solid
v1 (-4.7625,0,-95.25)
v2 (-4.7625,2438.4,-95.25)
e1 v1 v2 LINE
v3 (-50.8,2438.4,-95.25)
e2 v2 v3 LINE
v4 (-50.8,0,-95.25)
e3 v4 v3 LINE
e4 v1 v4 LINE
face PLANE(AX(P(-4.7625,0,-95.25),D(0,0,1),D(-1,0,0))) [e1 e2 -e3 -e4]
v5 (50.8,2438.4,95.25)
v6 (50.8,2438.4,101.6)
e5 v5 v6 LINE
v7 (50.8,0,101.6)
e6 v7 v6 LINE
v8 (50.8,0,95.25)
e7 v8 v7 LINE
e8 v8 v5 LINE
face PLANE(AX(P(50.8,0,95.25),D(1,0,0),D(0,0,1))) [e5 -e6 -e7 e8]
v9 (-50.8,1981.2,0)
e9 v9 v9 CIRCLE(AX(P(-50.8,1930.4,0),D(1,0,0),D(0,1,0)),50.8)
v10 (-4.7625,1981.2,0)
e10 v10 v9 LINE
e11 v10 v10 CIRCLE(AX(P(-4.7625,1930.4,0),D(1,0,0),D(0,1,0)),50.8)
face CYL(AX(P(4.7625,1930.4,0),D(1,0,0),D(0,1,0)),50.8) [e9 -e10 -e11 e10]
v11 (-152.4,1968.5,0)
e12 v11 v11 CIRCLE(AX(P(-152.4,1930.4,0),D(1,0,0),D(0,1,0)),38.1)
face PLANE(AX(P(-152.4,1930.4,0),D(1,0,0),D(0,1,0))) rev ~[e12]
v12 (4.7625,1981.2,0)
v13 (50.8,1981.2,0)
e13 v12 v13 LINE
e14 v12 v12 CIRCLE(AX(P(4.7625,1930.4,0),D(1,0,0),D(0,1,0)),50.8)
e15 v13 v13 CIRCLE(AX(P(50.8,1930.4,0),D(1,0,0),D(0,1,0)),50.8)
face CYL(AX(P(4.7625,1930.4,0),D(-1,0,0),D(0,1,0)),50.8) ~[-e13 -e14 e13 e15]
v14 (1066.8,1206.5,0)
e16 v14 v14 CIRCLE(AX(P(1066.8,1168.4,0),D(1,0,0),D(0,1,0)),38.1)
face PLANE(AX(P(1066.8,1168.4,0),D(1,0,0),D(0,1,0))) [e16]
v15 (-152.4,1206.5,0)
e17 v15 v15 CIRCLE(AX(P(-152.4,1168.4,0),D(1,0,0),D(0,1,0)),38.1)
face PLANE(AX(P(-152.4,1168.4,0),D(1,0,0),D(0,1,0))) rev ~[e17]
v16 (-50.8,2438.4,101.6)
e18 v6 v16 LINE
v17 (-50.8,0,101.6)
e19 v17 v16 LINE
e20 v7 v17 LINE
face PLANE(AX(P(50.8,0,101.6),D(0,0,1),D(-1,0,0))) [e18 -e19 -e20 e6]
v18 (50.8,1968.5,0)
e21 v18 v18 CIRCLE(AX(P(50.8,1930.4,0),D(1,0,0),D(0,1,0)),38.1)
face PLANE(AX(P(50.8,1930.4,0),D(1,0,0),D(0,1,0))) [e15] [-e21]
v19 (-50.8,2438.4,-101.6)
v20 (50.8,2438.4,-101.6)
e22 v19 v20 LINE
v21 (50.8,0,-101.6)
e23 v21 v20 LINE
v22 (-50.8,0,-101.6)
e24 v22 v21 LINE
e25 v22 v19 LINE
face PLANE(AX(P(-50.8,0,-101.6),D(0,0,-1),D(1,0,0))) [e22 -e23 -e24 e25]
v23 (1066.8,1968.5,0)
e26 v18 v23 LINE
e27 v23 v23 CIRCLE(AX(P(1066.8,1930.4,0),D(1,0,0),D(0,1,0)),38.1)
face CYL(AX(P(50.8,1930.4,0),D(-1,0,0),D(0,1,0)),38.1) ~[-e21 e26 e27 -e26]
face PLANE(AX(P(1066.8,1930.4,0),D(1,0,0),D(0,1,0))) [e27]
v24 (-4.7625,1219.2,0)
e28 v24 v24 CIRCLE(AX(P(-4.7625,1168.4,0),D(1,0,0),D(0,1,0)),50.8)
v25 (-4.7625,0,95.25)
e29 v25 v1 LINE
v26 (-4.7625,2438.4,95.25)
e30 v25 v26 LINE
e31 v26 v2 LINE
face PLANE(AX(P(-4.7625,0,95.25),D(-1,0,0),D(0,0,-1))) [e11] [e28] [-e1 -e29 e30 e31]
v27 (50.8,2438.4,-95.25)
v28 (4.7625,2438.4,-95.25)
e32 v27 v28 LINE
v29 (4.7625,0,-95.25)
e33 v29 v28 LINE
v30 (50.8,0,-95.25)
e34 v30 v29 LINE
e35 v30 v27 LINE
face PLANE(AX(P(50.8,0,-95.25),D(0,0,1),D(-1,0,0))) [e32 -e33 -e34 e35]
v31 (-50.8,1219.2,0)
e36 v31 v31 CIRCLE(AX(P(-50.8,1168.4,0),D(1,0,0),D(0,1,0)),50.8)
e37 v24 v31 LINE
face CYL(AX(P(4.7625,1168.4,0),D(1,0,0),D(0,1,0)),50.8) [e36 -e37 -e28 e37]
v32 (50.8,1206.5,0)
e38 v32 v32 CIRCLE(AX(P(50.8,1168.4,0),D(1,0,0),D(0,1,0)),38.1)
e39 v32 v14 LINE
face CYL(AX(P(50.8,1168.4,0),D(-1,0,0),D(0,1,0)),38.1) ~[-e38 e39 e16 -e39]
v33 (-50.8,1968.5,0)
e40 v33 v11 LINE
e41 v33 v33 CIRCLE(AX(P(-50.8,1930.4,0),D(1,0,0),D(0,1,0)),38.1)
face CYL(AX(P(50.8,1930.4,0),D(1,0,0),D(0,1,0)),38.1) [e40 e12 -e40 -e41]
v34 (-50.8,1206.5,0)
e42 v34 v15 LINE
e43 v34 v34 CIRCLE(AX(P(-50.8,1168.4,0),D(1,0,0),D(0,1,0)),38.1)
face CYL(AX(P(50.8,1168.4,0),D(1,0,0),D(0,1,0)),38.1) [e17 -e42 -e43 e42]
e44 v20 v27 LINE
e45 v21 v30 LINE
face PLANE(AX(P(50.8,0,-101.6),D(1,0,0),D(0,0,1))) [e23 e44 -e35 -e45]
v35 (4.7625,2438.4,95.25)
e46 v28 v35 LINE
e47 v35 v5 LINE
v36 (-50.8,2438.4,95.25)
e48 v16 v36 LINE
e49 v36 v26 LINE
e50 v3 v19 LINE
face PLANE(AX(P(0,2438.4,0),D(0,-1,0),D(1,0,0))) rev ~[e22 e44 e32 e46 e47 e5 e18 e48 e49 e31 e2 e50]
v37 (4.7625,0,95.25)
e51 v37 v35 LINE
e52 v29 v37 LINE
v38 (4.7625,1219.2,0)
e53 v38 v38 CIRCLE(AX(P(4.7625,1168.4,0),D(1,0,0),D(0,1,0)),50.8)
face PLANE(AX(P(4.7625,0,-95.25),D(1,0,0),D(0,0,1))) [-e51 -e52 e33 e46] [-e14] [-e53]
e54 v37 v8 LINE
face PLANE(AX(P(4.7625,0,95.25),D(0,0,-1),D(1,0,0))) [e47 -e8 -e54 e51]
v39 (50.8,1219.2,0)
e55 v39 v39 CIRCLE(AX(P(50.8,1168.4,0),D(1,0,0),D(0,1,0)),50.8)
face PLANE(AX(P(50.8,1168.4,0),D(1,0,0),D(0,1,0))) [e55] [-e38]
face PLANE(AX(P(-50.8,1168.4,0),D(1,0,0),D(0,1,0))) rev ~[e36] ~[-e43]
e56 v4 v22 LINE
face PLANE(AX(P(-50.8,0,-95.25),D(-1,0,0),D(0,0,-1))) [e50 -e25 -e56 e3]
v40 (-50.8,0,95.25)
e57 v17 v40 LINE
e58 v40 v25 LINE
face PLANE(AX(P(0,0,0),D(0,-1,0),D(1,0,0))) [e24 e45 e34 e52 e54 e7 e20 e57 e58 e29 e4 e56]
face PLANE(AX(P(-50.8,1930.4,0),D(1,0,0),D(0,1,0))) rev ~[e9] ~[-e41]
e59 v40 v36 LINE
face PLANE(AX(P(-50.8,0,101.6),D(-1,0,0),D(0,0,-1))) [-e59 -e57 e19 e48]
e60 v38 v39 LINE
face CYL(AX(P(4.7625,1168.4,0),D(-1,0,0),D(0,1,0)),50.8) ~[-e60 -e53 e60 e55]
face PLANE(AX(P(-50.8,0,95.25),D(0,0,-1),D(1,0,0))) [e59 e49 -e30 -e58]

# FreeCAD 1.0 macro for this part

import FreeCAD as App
import Part
import Sketcher
Q = App.Units.Quantity


def add_polygon(sketch, points):
    """Adds a closed chain of lines whose ends are joined by coincident constraints."""
    first, n = sketch.GeometryCount, len(points)
    for a, b in zip(points, points[1:] + points[:1]):
        sketch.addGeometry(Part.LineSegment(App.Vector(*a, 0), App.Vector(*b, 0)), False)
    for i in range(n):
        sketch.addConstraint(Sketcher.Constraint("Coincident", first + i, 2, first + (i + 1) % n, 1))

doc = App.newDocument("Part")
body = doc.addObject("PartDesign::Body", "Body")

sketch1 = body.newObject("Sketcher::SketchObject", "Sketch")
sketch1.AttachmentSupport = (doc.getObject("XZ_Plane"), [""])
sketch1.MapMode = "FlatFace"
add_polygon(sketch1, [(-51, -102), (51, -102), (51, -95), (5, -95), (5, 95), (51, 95), (51, 102), (-51, 102), (-51, 95), (-5, 95), (-5, -95), (-51, -95)])
sketch1.addConstraint([
    Sketcher.Constraint("Horizontal", 0),
    Sketcher.Constraint("Vertical", 1),
    Sketcher.Constraint("Horizontal", 2),
    Sketcher.Constraint("Vertical", 3),
    Sketcher.Constraint("Horizontal", 4),
    Sketcher.Constraint("Vertical", 5),
    Sketcher.Constraint("Horizontal", 6),
    Sketcher.Constraint("Vertical", 7),
    Sketcher.Constraint("Horizontal", 8),
    Sketcher.Constraint("Vertical", 9),
    Sketcher.Constraint("Horizontal", 10),
    Sketcher.Constraint("Vertical", 11),
    Sketcher.Constraint("Symmetric", 0, 2, 6, 2, -1, 1),
    Sketcher.Constraint("Symmetric", 2, 2, 8, 2, -1, 1),
    Sketcher.Constraint("Symmetric", 4, 2, 10, 2, -1, 1),
    Sketcher.Constraint("Symmetric", 4, 2, 7, 2, -2),
    Sketcher.Constraint("DistanceX", 0, 1, 0, 2, Q("4 in")),
    Sketcher.Constraint("DistanceY", 3, 1, 3, 2, Q("7.5 in")),
    Sketcher.Constraint("DistanceY", 0, 2, -1, 1, Q("4 in")),
    Sketcher.Constraint("DistanceX", 2, 2, 2, 1, Q("1.8125 in")),
])
pad1 = body.newObject("PartDesign::Pad", "Pad")
pad1.Profile = sketch1
pad1.Length = Q("96 in")
pad1.Reversed = True

sketch2 = body.newObject("Sketcher::SketchObject", "Sketch001")
sketch2.AttachmentSupport = (doc.getObject("YZ_Plane"), [""])
sketch2.MapMode = "FlatFace"
sketch2.AttachmentOffset = App.Placement(App.Vector(0, 0, 0.1875 * 25.4), App.Rotation())
sketch2.addGeometry([
    Part.Circle(App.Vector(1168, 0, 0), App.Vector(0, 0, 1), 51),
    Part.Circle(App.Vector(1930, 0, 0), App.Vector(0, 0, 1), 51),
], False)
sketch2.addConstraint([
    Sketcher.Constraint("Equal", 0, 1),
    Sketcher.Constraint("PointOnObject", 0, 3, -1),
    Sketcher.Constraint("PointOnObject", 1, 3, -1),
    Sketcher.Constraint("Diameter", 0, Q("4 in")),
    Sketcher.Constraint("DistanceX", -1, 1, 0, 3, Q("46 in")),
    Sketcher.Constraint("DistanceX", -1, 1, 1, 3, Q("76 in")),
])
pocket1 = body.newObject("PartDesign::Pocket", "Pocket")
pocket1.Profile = sketch2
pocket1.Type = "ThroughAll"

sketch3 = body.newObject("Sketcher::SketchObject", "Sketch002")
sketch3.AttachmentSupport = (doc.getObject("YZ_Plane"), [""])
sketch3.MapMode = "FlatFace"
sketch3.AttachmentOffset = App.Placement(App.Vector(0, 0, 0.1875 * 25.4), App.Rotation())
sketch3.addGeometry([
    Part.Circle(App.Vector(1168, 0, 0), App.Vector(0, 0, 1), 51),
    Part.Circle(App.Vector(1168, 0, 0), App.Vector(0, 0, 1), 38),
    Part.Circle(App.Vector(1930, 0, 0), App.Vector(0, 0, 1), 51),
    Part.Circle(App.Vector(1930, 0, 0), App.Vector(0, 0, 1), 38),
], False)
sketch3.addConstraint([
    Sketcher.Constraint("Coincident", 1, 3, 0, 3),
    Sketcher.Constraint("Coincident", 3, 3, 2, 3),
    Sketcher.Constraint("Equal", 0, 2),
    Sketcher.Constraint("Equal", 1, 3),
    Sketcher.Constraint("PointOnObject", 0, 3, -1),
    Sketcher.Constraint("PointOnObject", 2, 3, -1),
    Sketcher.Constraint("Diameter", 0, Q("4 in")),
    Sketcher.Constraint("Diameter", 1, Q("3 in")),
    Sketcher.Constraint("DistanceX", -1, 1, 0, 3, Q("46 in")),
    Sketcher.Constraint("DistanceX", -1, 1, 2, 3, Q("76 in")),
])
pad2 = body.newObject("PartDesign::Pad", "Pad001")
pad2.Profile = sketch3
pad2.Type = "TwoLengths"
pad2.Length = Q("1.8125 in")
pad2.Length2 = Q("2.1875 in")

sketch4 = body.newObject("Sketcher::SketchObject", "Sketch003")
sketch4.AttachmentSupport = (doc.getObject("YZ_Plane"), [""])
sketch4.MapMode = "FlatFace"
sketch4.AttachmentOffset = App.Placement(App.Vector(0, 0, 2 * 25.4), App.Rotation())
sketch4.addGeometry([
    Part.Circle(App.Vector(1168, 0, 0), App.Vector(0, 0, 1), 38),
    Part.Circle(App.Vector(1930, 0, 0), App.Vector(0, 0, 1), 38),
], False)
sketch4.addConstraint([
    Sketcher.Constraint("Equal", 0, 1),
    Sketcher.Constraint("PointOnObject", 0, 3, -1),
    Sketcher.Constraint("PointOnObject", 1, 3, -1),
    Sketcher.Constraint("Diameter", 0, Q("3 in")),
    Sketcher.Constraint("DistanceX", -1, 1, 0, 3, Q("46 in")),
    Sketcher.Constraint("DistanceX", -1, 1, 1, 3, Q("76 in")),
])
pad3 = body.newObject("PartDesign::Pad", "Pad002")
pad3.Profile = sketch4
pad3.Type = "TwoLengths"
pad3.Length = Q("40 in")
pad3.Length2 = Q("8 in")

doc.recompute()
